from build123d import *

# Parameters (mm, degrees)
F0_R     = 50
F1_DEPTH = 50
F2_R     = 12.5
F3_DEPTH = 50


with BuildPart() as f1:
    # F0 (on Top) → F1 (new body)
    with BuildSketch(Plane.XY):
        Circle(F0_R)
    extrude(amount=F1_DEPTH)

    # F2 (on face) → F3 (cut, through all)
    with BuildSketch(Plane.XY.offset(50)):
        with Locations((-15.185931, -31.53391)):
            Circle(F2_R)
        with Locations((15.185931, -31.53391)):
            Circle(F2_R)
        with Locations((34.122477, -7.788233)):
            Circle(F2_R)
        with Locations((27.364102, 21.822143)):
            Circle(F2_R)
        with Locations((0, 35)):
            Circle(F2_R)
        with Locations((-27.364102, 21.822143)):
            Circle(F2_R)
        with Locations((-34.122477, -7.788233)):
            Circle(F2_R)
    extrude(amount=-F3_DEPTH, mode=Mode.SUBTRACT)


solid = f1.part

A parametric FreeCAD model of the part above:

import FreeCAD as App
import Part
import Sketcher
from FreeCAD import Vector

doc = App.newDocument("Part")
body = doc.addObject("PartDesign::Body", "Body")

sketch1 = body.newObject("Sketcher::SketchObject", "Sketch")
sketch1.AttachmentSupport = (doc.getObject("XY_Plane"), [""])
sketch1.MapMode = "FlatFace"
sketch1.addGeometry(Part.Circle(Vector(0, 0, 0), Vector(0, 0, 1), 50), False)
sketch1.addConstraint(Sketcher.Constraint("Coincident", 0, 3, -1, 1))
sketch1.addConstraint(Sketcher.Constraint("Diameter", 0, 100.0))
pad1 = body.newObject("PartDesign::Pad", "Pad")
pad1.Profile = sketch1
pad1.Length = 50

sketch2 = body.newObject("Sketcher::SketchObject", "Sketch001")
sketch2.AttachmentSupport = (doc.getObject("XY_Plane"), [""])
sketch2.MapMode = "FlatFace"
sketch2.AttachmentOffset = App.Placement(Vector(0, 0, 50), App.Rotation())
sketch2.addGeometry(Part.Circle(Vector(-15.185931, -31.53391, 0), Vector(0, 0, 1), 12.5), False)
sketch2.addGeometry(Part.Circle(Vector(15.185931, -31.53391, 0), Vector(0, 0, 1), 12.5), False)
sketch2.addGeometry(Part.Circle(Vector(34.122477, -7.788233, 0), Vector(0, 0, 1), 12.5), False)
sketch2.addGeometry(Part.Circle(Vector(27.364102, 21.822143, 0), Vector(0, 0, 1), 12.5), False)
sketch2.addGeometry(Part.Circle(Vector(0, 35, 0), Vector(0, 0, 1), 12.5), False)
sketch2.addGeometry(Part.Circle(Vector(-27.364102, 21.822143, 0), Vector(0, 0, 1), 12.5), False)
sketch2.addGeometry(Part.Circle(Vector(-34.122477, -7.788233, 0), Vector(0, 0, 1), 12.5), False)
sketch2.addConstraint(Sketcher.Constraint("Equal", 0, 1))
sketch2.addConstraint(Sketcher.Constraint("Equal", 1, 2))
sketch2.addConstraint(Sketcher.Constraint("Equal", 2, 3))
sketch2.addConstraint(Sketcher.Constraint("Equal", 3, 4))
sketch2.addConstraint(Sketcher.Constraint("Equal", 4, 5))
sketch2.addConstraint(Sketcher.Constraint("Equal", 5, 6))
sketch2.addConstraint(Sketcher.Constraint("Symmetric", 0, 3, 1, 3, -2))
sketch2.addConstraint(Sketcher.Constraint("Symmetric", 3, 3, 5, 3, -2))
sketch2.addConstraint(Sketcher.Constraint("Symmetric", 2, 3, 6, 3, -2))
sketch2.addConstraint(Sketcher.Constraint("PointOnObject", 4, 3, -2))
sketch2.addConstraint(Sketcher.Constraint("Diameter", 0, 25.0))
sketch2.addConstraint(Sketcher.Constraint("DistanceY", -1, 1, 4, 3, 35.0))
sketch2.addConstraint(Sketcher.Constraint("DistanceX", -1, 1, 3, 3, 27.364102))
sketch2.addConstraint(Sketcher.Constraint("DistanceX", 0, 3, -1, 1, 15.185931))
sketch2.addConstraint(Sketcher.Constraint("DistanceY", 0, 3, -1, 1, 31.53391))
sketch2.addConstraint(Sketcher.Constraint("DistanceX", 5, 3, 2, 3, 61.486579))
sketch2.addConstraint(Sketcher.Constraint("DistanceY", 2, 3, -1, 1, 7.788233))
sketch2.addConstraint(Sketcher.Constraint("DistanceY", -1, 1, 3, 3, 21.822143))
pocket1 = body.newObject("PartDesign::Pocket", "Pocket")
pocket1.Profile = sketch2
pocket1.Type = "ThroughAll"

doc.recompute()
